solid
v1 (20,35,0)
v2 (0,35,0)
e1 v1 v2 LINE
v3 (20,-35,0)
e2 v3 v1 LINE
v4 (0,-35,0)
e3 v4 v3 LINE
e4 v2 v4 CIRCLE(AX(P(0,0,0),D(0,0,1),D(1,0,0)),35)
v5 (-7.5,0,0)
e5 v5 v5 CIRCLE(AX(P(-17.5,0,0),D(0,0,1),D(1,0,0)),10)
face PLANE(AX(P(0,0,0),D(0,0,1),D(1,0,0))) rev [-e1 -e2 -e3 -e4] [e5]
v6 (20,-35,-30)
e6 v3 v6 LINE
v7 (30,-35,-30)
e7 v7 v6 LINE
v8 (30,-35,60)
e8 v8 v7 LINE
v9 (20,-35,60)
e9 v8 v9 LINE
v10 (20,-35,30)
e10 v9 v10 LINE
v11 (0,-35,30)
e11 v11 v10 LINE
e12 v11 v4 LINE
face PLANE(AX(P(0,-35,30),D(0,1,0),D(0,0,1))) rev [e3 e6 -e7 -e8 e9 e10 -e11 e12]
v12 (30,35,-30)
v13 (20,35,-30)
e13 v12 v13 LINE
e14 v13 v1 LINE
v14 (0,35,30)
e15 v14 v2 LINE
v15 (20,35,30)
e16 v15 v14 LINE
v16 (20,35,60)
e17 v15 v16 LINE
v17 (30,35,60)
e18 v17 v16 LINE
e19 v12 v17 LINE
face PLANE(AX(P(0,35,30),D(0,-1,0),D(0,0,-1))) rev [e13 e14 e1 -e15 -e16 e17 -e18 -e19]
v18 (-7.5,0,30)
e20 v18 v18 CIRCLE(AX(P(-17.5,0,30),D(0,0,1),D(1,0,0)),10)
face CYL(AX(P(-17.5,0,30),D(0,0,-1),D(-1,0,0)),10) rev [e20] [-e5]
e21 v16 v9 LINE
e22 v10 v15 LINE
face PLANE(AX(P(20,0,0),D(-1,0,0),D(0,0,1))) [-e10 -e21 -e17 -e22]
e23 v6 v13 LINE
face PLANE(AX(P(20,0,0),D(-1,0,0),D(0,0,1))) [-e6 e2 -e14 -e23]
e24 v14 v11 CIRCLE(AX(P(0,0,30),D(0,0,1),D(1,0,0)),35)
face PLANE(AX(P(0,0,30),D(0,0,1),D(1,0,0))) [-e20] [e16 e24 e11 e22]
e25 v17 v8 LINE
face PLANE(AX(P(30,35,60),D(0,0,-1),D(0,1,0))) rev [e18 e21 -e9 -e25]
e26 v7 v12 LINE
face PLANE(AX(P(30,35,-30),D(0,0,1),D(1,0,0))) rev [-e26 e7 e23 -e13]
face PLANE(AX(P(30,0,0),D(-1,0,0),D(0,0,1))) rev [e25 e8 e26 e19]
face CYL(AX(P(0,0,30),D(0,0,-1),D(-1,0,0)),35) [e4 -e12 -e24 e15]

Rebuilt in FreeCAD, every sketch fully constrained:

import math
import FreeCAD as App
import Part
import Sketcher

V = App.Vector

doc = App.newDocument("Part")
body = doc.addObject("PartDesign::Body", "Body")

sketch1 = doc.addObject("Sketcher::SketchObject", "Sketch")
body.addObject(sketch1)
sketch1.AttachmentSupport = (doc.XY_Plane, [""])
sketch1.MapMode = "FlatFace"
sketch1.addGeometry([
    Part.LineSegment(V(20, 35, 0), V(0, 35, 0)),
    Part.ArcOfCircle(Part.Circle(V(0, 0, 0), V(0, 0, 1), 35), math.radians(90), math.radians(270)),
    Part.LineSegment(V(0, -35, 0), V(20, -35, 0)),
    Part.LineSegment(V(20, -35, 0), V(20, 35, 0)),
    Part.Circle(V(-18, 0, 0), V(0, 0, 1), 10),
], False)
sketch1.addConstraint([
    Sketcher.Constraint("Tangent", 0, 2, 1, 1),
    Sketcher.Constraint("Tangent", 1, 2, 2, 1),
    Sketcher.Constraint("Coincident", 2, 2, 3, 1),
    Sketcher.Constraint("Coincident", 3, 2, 0, 1),
    Sketcher.Constraint("Horizontal", 0),
    Sketcher.Constraint("Horizontal", 2),
    Sketcher.Constraint("Vertical", 3),
    Sketcher.Constraint("Coincident", 1, 3, -1, 1),
    Sketcher.Constraint("PointOnObject", 4, 3, -1),
    Sketcher.Constraint("Diameter", 4, 20.0),
    Sketcher.Constraint("Radius", 1, 35.0),
    Sketcher.Constraint("DistanceX", 0, 2, 0, 1, 20.0),
    Sketcher.Constraint("DistanceX", 4, 3, -1, 1, 17.5),
])
pad1 = doc.addObject("PartDesign::Pad", "Pad")
body.addObject(pad1)
pad1.Profile = sketch1
pad1.Length = 30

sketch2 = doc.addObject("Sketcher::SketchObject", "Sketch001")
body.addObject(sketch2)
sketch2.AttachmentSupport = (doc.YZ_Plane, [""])
sketch2.MapMode = "FlatFace"
sketch2.AttachmentOffset = App.Placement(V(0, 0, 20), App.Rotation())
sketch2.addGeometry([
    Part.LineSegment(V(35, 60, 0), V(-35, 60, 0)),
    Part.LineSegment(V(-35, 60, 0), V(-35, -30, 0)),
    Part.LineSegment(V(-35, -30, 0), V(35, -30, 0)),
    Part.LineSegment(V(35, -30, 0), V(35, 60, 0)),
], False)
sketch2.addConstraint([
    Sketcher.Constraint("Coincident", 0, 2, 1, 1),
    Sketcher.Constraint("Coincident", 1, 2, 2, 1),
    Sketcher.Constraint("Coincident", 2, 2, 3, 1),
    Sketcher.Constraint("Coincident", 3, 2, 0, 1),
    Sketcher.Constraint("Horizontal", 0),
    Sketcher.Constraint("Vertical", 1),
    Sketcher.Constraint("Horizontal", 2),
    Sketcher.Constraint("Vertical", 3),
    Sketcher.Constraint("DistanceX", 0, 2, 0, 1, 70.0),
    Sketcher.Constraint("DistanceY", 1, 2, 1, 1, 90.0),
    Sketcher.Constraint("DistanceX", 0, 2, -1, 1, 35.0),
    Sketcher.Constraint("DistanceY", -1, 1, 0, 2, 60.0),
])
pad2 = doc.addObject("PartDesign::Pad", "Pad001")
body.addObject(pad2)
pad2.Profile = sketch2
pad2.Length = 10

doc.recompute()
